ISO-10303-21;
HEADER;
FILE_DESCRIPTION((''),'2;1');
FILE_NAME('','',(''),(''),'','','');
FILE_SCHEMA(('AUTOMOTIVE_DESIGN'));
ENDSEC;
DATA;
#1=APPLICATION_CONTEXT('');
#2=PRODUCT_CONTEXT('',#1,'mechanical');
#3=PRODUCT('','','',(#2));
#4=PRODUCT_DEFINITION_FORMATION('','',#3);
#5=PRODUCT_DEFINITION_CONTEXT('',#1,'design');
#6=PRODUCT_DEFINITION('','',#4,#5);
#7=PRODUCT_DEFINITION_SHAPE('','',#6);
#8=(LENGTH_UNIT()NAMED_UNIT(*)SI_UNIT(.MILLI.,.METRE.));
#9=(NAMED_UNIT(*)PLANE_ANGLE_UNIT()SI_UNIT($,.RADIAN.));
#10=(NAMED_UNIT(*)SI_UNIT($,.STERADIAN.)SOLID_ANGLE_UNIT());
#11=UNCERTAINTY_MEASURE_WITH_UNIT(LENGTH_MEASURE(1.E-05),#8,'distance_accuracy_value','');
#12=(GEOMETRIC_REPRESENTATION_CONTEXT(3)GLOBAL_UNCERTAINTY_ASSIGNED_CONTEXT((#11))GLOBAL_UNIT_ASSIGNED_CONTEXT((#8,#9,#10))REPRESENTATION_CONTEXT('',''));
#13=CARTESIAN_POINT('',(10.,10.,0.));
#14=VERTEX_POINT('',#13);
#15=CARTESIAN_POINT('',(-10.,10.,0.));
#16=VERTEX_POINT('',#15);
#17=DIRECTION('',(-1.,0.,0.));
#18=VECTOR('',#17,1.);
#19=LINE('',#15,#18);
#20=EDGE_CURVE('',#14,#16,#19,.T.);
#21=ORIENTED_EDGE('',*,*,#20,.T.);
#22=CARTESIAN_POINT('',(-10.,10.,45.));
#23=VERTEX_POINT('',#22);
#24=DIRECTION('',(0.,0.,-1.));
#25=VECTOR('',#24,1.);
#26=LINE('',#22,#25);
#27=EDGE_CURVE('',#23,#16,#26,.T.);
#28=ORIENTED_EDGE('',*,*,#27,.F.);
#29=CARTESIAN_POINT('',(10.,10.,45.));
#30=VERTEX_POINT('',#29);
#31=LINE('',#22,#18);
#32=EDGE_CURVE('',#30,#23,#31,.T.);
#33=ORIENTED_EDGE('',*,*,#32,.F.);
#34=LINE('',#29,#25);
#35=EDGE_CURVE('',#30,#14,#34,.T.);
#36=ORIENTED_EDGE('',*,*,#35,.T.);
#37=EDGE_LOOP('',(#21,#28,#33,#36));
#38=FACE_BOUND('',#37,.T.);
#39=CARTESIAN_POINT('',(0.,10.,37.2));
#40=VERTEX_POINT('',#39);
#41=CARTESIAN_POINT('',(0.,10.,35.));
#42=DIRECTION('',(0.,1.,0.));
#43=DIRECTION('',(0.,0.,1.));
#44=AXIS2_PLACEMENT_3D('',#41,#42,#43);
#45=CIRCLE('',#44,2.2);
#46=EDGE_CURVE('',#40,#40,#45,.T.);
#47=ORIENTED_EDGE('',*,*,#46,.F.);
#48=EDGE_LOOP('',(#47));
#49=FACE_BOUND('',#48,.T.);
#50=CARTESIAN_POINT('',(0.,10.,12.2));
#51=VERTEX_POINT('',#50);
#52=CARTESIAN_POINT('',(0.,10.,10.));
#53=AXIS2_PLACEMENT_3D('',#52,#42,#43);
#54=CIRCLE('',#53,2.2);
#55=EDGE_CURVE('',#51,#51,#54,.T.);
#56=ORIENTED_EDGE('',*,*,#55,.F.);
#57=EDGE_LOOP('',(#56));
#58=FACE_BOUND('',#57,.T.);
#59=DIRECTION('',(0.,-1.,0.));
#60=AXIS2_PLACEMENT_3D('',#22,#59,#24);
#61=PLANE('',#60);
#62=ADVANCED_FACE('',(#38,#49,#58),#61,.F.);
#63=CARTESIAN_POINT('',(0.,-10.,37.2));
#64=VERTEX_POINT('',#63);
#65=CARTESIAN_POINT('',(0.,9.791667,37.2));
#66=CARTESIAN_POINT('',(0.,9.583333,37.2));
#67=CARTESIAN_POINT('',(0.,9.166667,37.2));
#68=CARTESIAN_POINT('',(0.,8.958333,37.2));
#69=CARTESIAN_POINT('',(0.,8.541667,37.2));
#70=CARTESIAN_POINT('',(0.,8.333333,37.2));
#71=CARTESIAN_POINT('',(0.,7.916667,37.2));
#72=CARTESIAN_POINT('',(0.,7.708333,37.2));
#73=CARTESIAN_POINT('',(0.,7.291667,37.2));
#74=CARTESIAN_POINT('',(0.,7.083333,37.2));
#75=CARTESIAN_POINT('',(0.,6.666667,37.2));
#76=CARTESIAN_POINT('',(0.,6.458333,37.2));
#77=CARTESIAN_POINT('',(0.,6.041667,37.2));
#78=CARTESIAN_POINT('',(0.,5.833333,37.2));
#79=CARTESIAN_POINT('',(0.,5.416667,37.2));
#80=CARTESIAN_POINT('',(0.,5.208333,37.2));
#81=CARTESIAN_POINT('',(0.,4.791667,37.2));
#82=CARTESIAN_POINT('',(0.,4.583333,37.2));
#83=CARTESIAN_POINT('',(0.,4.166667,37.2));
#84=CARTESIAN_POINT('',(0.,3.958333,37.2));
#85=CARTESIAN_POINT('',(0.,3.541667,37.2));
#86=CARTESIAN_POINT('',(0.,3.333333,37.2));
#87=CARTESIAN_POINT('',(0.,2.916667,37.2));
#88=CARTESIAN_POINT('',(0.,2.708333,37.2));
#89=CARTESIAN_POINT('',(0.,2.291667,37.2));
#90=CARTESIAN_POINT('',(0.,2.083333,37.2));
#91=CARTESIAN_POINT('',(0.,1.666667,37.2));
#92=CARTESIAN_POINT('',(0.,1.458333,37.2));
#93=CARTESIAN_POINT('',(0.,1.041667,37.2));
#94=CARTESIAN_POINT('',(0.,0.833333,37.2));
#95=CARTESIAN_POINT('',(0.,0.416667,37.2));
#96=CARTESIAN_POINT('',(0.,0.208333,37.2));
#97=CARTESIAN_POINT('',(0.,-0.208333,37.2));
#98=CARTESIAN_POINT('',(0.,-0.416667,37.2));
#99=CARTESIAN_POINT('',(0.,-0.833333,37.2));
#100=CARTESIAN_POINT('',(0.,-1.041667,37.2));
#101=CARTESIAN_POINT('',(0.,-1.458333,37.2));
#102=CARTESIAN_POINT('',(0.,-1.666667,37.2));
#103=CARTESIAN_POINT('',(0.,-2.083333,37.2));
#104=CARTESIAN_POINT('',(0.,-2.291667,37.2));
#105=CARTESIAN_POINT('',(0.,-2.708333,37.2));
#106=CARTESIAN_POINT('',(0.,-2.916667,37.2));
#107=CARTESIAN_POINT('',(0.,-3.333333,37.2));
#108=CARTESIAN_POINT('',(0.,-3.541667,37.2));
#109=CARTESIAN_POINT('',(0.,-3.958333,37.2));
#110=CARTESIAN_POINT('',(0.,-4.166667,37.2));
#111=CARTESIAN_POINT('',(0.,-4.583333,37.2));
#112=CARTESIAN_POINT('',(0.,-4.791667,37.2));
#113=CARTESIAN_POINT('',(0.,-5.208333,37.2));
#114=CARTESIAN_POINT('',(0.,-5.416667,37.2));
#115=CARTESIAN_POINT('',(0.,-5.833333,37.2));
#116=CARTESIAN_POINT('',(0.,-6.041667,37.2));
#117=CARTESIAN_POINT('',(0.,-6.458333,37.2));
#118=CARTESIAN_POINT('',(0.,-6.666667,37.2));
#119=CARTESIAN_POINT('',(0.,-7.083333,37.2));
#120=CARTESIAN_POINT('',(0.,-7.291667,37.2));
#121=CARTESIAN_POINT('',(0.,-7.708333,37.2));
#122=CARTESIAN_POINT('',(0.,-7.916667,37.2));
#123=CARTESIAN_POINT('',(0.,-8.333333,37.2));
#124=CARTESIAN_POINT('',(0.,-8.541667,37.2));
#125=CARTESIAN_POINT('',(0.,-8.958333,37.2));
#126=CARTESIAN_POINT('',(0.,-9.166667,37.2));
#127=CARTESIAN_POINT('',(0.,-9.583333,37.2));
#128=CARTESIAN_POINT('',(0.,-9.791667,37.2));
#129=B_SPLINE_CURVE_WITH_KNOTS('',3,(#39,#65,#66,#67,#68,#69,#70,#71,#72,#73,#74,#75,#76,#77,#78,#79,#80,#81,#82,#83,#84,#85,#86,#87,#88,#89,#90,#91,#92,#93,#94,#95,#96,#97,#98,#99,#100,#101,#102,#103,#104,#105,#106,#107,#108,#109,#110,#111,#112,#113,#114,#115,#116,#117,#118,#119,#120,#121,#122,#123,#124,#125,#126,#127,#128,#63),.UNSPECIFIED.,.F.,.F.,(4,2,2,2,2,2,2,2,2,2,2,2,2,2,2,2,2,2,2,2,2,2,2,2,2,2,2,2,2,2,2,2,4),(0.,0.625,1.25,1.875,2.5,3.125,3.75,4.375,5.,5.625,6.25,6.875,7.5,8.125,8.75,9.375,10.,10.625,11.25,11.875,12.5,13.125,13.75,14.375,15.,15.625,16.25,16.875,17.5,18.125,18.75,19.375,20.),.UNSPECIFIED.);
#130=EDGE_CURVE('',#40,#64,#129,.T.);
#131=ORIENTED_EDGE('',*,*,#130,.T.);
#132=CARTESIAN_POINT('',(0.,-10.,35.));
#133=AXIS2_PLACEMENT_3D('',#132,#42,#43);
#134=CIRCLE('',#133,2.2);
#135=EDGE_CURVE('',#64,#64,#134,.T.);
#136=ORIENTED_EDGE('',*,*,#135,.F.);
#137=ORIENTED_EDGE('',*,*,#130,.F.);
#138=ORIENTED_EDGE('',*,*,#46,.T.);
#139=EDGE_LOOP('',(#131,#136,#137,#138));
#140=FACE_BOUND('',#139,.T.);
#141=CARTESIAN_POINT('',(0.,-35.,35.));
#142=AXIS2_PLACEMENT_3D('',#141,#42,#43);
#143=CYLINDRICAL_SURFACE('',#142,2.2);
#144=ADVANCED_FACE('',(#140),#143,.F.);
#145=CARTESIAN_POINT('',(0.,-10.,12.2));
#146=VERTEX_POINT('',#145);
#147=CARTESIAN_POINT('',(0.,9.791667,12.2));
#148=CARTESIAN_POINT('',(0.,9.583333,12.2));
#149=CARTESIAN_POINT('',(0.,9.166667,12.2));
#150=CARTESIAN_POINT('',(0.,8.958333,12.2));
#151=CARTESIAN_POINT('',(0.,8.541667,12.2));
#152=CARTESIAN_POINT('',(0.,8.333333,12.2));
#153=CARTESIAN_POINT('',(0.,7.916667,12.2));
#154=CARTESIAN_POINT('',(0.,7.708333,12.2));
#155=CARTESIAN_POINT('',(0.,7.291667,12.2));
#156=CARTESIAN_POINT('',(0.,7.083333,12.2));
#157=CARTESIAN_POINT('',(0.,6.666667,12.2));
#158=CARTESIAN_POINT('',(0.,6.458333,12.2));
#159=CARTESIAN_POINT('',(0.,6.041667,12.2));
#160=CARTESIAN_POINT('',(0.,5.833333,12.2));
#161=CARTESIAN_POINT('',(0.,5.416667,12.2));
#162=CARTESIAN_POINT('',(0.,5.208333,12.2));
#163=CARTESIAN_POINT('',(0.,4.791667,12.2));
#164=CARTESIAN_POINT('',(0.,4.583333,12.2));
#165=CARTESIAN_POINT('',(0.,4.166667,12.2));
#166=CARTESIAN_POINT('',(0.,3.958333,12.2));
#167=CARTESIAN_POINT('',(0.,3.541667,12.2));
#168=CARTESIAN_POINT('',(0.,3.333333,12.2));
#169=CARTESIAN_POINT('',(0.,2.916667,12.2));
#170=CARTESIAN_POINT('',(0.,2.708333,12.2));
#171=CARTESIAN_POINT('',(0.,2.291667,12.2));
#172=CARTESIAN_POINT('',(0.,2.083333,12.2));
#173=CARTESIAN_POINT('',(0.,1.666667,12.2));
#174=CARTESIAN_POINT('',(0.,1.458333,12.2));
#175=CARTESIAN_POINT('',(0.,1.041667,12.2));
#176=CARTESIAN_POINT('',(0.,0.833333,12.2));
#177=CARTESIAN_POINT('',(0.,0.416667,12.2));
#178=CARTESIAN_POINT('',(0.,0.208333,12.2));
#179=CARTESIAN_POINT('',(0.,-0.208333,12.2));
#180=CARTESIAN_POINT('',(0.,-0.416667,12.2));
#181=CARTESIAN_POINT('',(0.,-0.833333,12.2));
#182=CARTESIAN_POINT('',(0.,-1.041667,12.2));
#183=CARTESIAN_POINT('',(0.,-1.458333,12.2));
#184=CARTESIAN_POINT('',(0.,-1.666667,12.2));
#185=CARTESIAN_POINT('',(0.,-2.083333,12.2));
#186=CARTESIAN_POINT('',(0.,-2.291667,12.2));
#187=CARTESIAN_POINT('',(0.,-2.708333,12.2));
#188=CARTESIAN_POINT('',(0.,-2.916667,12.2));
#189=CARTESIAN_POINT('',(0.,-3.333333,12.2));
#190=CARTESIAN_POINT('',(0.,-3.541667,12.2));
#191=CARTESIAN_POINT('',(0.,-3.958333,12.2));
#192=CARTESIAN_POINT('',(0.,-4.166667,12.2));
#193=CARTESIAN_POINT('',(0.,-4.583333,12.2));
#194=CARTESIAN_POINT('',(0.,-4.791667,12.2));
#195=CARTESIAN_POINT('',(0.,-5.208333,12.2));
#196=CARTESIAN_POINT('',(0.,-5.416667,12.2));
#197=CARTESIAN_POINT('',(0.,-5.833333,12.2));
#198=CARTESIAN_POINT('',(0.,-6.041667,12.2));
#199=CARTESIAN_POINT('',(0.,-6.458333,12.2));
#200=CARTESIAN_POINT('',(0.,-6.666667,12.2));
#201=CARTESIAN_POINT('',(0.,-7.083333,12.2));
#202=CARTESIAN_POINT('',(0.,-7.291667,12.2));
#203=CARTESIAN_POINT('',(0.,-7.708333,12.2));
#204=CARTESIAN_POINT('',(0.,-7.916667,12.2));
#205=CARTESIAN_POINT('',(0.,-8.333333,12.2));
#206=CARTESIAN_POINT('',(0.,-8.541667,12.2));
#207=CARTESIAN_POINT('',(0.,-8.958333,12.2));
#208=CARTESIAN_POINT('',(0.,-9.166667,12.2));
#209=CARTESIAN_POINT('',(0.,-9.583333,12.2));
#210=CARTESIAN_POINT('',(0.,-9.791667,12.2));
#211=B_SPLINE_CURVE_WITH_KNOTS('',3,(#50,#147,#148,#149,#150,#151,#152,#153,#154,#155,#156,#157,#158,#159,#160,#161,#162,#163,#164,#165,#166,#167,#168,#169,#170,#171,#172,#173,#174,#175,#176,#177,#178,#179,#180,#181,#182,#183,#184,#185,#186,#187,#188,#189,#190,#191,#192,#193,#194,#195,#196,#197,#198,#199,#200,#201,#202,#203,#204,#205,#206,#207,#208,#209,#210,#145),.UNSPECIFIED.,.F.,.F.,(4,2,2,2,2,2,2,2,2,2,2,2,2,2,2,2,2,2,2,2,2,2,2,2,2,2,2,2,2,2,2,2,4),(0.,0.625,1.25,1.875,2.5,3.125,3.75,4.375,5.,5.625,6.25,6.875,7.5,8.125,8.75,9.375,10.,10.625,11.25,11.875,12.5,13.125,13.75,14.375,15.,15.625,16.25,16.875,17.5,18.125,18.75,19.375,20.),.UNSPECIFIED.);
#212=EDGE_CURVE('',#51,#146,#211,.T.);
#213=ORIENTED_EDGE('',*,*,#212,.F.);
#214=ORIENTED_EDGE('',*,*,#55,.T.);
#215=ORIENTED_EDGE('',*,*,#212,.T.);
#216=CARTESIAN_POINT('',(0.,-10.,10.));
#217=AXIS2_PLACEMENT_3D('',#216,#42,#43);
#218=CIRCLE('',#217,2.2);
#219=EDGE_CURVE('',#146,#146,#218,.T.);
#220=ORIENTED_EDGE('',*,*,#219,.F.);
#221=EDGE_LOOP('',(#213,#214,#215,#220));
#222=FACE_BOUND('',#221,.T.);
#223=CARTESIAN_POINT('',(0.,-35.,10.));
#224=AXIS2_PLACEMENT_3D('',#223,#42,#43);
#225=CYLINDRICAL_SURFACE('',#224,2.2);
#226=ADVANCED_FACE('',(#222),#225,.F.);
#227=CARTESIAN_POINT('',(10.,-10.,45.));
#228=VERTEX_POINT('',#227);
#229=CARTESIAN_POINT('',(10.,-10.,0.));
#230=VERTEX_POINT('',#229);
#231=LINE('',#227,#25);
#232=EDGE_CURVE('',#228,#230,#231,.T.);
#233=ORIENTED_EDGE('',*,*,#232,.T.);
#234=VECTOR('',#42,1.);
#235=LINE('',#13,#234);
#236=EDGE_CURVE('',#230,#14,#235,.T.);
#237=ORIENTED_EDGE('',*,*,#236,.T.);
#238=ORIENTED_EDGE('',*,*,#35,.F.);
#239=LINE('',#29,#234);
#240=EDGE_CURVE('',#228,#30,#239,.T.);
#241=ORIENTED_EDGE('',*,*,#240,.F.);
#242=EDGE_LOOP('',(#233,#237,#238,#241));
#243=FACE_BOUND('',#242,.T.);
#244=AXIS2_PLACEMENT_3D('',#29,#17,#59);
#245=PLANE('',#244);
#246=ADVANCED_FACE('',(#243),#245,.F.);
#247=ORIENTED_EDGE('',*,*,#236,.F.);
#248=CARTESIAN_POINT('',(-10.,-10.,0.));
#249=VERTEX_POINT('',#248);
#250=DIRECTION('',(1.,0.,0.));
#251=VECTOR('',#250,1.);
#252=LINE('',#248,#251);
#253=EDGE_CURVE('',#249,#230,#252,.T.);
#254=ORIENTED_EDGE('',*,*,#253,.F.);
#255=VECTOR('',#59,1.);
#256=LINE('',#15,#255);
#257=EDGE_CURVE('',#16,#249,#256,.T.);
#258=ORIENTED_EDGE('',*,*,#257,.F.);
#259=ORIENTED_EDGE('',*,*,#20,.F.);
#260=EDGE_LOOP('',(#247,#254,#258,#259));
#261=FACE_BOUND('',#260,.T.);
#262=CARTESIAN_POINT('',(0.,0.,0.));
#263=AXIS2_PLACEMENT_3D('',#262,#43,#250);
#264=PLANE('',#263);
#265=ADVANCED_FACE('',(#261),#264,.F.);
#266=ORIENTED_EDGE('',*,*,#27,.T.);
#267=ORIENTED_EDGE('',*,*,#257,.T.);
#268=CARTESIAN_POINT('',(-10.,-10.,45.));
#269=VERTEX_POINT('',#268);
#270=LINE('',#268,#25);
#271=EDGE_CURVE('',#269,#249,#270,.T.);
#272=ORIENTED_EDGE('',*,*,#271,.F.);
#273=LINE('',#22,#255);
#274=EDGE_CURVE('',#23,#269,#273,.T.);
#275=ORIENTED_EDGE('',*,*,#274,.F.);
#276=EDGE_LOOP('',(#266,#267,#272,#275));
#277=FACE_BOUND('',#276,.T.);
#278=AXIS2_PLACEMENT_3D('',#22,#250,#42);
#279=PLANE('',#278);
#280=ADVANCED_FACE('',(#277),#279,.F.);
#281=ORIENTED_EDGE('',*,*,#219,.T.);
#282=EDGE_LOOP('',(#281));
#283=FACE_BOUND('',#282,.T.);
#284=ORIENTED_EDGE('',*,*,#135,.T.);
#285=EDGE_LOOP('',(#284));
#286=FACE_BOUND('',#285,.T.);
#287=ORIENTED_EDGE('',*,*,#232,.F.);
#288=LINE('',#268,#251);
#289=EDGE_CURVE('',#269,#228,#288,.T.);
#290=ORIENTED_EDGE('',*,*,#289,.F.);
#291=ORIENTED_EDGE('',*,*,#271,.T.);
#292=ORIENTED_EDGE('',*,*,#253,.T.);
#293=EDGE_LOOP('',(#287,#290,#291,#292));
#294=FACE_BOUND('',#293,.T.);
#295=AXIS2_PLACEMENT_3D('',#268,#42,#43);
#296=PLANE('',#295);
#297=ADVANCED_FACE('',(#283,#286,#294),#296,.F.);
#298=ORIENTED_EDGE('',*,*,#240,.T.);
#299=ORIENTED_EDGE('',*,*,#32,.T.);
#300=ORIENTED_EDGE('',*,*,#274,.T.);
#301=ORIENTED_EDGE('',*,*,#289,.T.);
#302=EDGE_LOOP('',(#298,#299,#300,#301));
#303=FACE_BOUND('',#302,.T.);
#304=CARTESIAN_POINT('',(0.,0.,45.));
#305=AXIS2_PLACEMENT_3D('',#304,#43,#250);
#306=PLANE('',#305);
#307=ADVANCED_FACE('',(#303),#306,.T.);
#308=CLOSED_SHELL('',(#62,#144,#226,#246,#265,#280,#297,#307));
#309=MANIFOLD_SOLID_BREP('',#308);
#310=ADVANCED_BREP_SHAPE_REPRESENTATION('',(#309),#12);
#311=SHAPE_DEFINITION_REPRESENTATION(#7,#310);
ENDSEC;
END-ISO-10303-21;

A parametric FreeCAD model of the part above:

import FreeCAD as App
import Part
import Sketcher
Q = App.Units.Quantity

doc = App.newDocument("Part")
body = doc.addObject("PartDesign::Body", "Body")

# Sketch on XY plane
sketch1 = doc.addObject("Sketcher::SketchObject", "Sketch")
body.addObject(sketch1)
sketch1.AttachmentSupport = (doc.XY_Plane, [""])
sketch1.MapMode = "FlatFace"
sketch1.addGeometry([
    Part.LineSegment(App.Vector(-10, 10, 0), App.Vector(-10, -10, 0)),
    Part.LineSegment(App.Vector(-10, -10, 0), App.Vector(10, -10, 0)),
    Part.LineSegment(App.Vector(10, -10, 0), App.Vector(10, 10, 0)),
    Part.LineSegment(App.Vector(10, 10, 0), App.Vector(-10, 10, 0)),
], False)
sketch1.addConstraint([
    Sketcher.Constraint("Coincident", 0, 2, 1, 1),
    Sketcher.Constraint("Coincident", 1, 2, 2, 1),
    Sketcher.Constraint("Coincident", 2, 2, 3, 1),
    Sketcher.Constraint("Coincident", 3, 2, 0, 1),
    Sketcher.Constraint("Vertical", 0),
    Sketcher.Constraint("Horizontal", 1),
    Sketcher.Constraint("Vertical", 2),
    Sketcher.Constraint("Horizontal", 3),
    Sketcher.Constraint("Symmetric", 0, 2, 2, 2, -1, 1),
    Sketcher.Constraint("Equal", 3, 0),
    Sketcher.Constraint("DistanceX", 1, 1, 1, 2, Q("20 mm")),
])
pad1 = doc.addObject("PartDesign::Pad", "Pad")
body.addObject(pad1)
pad1.Profile = sketch1
pad1.Length = 45

# Sketch on XZ plane
sketch2 = doc.addObject("Sketcher::SketchObject", "Sketch001")
body.addObject(sketch2)
sketch2.AttachmentSupport = (doc.XZ_Plane, [""])
sketch2.MapMode = "FlatFace"
sketch2.AttachmentOffset = App.Placement(App.Vector(0, 0, -10), App.Rotation())
sketch2.addGeometry([
    Part.Circle(App.Vector(0, 10, 0), App.Vector(0, 0, 1), 2.2),
    Part.Circle(App.Vector(0, 35, 0), App.Vector(0, 0, 1), 2.2),
], False)
sketch2.addConstraint([
    Sketcher.Constraint("Equal", 0, 1),
    Sketcher.Constraint("PointOnObject", 0, 3, -2),
    Sketcher.Constraint("PointOnObject", 1, 3, -2),
    Sketcher.Constraint("Diameter", 0, Q("4.4 mm")),
    Sketcher.Constraint("DistanceY", -1, 1, 0, 3, Q("10 mm")),
    Sketcher.Constraint("DistanceY", -1, 1, 1, 3, Q("35 mm")),
])
pocket1 = doc.addObject("PartDesign::Pocket", "Pocket")
body.addObject(pocket1)
pocket1.Profile = sketch2
pocket1.Length = 45
pocket1.Reversed = True

doc.recompute()
